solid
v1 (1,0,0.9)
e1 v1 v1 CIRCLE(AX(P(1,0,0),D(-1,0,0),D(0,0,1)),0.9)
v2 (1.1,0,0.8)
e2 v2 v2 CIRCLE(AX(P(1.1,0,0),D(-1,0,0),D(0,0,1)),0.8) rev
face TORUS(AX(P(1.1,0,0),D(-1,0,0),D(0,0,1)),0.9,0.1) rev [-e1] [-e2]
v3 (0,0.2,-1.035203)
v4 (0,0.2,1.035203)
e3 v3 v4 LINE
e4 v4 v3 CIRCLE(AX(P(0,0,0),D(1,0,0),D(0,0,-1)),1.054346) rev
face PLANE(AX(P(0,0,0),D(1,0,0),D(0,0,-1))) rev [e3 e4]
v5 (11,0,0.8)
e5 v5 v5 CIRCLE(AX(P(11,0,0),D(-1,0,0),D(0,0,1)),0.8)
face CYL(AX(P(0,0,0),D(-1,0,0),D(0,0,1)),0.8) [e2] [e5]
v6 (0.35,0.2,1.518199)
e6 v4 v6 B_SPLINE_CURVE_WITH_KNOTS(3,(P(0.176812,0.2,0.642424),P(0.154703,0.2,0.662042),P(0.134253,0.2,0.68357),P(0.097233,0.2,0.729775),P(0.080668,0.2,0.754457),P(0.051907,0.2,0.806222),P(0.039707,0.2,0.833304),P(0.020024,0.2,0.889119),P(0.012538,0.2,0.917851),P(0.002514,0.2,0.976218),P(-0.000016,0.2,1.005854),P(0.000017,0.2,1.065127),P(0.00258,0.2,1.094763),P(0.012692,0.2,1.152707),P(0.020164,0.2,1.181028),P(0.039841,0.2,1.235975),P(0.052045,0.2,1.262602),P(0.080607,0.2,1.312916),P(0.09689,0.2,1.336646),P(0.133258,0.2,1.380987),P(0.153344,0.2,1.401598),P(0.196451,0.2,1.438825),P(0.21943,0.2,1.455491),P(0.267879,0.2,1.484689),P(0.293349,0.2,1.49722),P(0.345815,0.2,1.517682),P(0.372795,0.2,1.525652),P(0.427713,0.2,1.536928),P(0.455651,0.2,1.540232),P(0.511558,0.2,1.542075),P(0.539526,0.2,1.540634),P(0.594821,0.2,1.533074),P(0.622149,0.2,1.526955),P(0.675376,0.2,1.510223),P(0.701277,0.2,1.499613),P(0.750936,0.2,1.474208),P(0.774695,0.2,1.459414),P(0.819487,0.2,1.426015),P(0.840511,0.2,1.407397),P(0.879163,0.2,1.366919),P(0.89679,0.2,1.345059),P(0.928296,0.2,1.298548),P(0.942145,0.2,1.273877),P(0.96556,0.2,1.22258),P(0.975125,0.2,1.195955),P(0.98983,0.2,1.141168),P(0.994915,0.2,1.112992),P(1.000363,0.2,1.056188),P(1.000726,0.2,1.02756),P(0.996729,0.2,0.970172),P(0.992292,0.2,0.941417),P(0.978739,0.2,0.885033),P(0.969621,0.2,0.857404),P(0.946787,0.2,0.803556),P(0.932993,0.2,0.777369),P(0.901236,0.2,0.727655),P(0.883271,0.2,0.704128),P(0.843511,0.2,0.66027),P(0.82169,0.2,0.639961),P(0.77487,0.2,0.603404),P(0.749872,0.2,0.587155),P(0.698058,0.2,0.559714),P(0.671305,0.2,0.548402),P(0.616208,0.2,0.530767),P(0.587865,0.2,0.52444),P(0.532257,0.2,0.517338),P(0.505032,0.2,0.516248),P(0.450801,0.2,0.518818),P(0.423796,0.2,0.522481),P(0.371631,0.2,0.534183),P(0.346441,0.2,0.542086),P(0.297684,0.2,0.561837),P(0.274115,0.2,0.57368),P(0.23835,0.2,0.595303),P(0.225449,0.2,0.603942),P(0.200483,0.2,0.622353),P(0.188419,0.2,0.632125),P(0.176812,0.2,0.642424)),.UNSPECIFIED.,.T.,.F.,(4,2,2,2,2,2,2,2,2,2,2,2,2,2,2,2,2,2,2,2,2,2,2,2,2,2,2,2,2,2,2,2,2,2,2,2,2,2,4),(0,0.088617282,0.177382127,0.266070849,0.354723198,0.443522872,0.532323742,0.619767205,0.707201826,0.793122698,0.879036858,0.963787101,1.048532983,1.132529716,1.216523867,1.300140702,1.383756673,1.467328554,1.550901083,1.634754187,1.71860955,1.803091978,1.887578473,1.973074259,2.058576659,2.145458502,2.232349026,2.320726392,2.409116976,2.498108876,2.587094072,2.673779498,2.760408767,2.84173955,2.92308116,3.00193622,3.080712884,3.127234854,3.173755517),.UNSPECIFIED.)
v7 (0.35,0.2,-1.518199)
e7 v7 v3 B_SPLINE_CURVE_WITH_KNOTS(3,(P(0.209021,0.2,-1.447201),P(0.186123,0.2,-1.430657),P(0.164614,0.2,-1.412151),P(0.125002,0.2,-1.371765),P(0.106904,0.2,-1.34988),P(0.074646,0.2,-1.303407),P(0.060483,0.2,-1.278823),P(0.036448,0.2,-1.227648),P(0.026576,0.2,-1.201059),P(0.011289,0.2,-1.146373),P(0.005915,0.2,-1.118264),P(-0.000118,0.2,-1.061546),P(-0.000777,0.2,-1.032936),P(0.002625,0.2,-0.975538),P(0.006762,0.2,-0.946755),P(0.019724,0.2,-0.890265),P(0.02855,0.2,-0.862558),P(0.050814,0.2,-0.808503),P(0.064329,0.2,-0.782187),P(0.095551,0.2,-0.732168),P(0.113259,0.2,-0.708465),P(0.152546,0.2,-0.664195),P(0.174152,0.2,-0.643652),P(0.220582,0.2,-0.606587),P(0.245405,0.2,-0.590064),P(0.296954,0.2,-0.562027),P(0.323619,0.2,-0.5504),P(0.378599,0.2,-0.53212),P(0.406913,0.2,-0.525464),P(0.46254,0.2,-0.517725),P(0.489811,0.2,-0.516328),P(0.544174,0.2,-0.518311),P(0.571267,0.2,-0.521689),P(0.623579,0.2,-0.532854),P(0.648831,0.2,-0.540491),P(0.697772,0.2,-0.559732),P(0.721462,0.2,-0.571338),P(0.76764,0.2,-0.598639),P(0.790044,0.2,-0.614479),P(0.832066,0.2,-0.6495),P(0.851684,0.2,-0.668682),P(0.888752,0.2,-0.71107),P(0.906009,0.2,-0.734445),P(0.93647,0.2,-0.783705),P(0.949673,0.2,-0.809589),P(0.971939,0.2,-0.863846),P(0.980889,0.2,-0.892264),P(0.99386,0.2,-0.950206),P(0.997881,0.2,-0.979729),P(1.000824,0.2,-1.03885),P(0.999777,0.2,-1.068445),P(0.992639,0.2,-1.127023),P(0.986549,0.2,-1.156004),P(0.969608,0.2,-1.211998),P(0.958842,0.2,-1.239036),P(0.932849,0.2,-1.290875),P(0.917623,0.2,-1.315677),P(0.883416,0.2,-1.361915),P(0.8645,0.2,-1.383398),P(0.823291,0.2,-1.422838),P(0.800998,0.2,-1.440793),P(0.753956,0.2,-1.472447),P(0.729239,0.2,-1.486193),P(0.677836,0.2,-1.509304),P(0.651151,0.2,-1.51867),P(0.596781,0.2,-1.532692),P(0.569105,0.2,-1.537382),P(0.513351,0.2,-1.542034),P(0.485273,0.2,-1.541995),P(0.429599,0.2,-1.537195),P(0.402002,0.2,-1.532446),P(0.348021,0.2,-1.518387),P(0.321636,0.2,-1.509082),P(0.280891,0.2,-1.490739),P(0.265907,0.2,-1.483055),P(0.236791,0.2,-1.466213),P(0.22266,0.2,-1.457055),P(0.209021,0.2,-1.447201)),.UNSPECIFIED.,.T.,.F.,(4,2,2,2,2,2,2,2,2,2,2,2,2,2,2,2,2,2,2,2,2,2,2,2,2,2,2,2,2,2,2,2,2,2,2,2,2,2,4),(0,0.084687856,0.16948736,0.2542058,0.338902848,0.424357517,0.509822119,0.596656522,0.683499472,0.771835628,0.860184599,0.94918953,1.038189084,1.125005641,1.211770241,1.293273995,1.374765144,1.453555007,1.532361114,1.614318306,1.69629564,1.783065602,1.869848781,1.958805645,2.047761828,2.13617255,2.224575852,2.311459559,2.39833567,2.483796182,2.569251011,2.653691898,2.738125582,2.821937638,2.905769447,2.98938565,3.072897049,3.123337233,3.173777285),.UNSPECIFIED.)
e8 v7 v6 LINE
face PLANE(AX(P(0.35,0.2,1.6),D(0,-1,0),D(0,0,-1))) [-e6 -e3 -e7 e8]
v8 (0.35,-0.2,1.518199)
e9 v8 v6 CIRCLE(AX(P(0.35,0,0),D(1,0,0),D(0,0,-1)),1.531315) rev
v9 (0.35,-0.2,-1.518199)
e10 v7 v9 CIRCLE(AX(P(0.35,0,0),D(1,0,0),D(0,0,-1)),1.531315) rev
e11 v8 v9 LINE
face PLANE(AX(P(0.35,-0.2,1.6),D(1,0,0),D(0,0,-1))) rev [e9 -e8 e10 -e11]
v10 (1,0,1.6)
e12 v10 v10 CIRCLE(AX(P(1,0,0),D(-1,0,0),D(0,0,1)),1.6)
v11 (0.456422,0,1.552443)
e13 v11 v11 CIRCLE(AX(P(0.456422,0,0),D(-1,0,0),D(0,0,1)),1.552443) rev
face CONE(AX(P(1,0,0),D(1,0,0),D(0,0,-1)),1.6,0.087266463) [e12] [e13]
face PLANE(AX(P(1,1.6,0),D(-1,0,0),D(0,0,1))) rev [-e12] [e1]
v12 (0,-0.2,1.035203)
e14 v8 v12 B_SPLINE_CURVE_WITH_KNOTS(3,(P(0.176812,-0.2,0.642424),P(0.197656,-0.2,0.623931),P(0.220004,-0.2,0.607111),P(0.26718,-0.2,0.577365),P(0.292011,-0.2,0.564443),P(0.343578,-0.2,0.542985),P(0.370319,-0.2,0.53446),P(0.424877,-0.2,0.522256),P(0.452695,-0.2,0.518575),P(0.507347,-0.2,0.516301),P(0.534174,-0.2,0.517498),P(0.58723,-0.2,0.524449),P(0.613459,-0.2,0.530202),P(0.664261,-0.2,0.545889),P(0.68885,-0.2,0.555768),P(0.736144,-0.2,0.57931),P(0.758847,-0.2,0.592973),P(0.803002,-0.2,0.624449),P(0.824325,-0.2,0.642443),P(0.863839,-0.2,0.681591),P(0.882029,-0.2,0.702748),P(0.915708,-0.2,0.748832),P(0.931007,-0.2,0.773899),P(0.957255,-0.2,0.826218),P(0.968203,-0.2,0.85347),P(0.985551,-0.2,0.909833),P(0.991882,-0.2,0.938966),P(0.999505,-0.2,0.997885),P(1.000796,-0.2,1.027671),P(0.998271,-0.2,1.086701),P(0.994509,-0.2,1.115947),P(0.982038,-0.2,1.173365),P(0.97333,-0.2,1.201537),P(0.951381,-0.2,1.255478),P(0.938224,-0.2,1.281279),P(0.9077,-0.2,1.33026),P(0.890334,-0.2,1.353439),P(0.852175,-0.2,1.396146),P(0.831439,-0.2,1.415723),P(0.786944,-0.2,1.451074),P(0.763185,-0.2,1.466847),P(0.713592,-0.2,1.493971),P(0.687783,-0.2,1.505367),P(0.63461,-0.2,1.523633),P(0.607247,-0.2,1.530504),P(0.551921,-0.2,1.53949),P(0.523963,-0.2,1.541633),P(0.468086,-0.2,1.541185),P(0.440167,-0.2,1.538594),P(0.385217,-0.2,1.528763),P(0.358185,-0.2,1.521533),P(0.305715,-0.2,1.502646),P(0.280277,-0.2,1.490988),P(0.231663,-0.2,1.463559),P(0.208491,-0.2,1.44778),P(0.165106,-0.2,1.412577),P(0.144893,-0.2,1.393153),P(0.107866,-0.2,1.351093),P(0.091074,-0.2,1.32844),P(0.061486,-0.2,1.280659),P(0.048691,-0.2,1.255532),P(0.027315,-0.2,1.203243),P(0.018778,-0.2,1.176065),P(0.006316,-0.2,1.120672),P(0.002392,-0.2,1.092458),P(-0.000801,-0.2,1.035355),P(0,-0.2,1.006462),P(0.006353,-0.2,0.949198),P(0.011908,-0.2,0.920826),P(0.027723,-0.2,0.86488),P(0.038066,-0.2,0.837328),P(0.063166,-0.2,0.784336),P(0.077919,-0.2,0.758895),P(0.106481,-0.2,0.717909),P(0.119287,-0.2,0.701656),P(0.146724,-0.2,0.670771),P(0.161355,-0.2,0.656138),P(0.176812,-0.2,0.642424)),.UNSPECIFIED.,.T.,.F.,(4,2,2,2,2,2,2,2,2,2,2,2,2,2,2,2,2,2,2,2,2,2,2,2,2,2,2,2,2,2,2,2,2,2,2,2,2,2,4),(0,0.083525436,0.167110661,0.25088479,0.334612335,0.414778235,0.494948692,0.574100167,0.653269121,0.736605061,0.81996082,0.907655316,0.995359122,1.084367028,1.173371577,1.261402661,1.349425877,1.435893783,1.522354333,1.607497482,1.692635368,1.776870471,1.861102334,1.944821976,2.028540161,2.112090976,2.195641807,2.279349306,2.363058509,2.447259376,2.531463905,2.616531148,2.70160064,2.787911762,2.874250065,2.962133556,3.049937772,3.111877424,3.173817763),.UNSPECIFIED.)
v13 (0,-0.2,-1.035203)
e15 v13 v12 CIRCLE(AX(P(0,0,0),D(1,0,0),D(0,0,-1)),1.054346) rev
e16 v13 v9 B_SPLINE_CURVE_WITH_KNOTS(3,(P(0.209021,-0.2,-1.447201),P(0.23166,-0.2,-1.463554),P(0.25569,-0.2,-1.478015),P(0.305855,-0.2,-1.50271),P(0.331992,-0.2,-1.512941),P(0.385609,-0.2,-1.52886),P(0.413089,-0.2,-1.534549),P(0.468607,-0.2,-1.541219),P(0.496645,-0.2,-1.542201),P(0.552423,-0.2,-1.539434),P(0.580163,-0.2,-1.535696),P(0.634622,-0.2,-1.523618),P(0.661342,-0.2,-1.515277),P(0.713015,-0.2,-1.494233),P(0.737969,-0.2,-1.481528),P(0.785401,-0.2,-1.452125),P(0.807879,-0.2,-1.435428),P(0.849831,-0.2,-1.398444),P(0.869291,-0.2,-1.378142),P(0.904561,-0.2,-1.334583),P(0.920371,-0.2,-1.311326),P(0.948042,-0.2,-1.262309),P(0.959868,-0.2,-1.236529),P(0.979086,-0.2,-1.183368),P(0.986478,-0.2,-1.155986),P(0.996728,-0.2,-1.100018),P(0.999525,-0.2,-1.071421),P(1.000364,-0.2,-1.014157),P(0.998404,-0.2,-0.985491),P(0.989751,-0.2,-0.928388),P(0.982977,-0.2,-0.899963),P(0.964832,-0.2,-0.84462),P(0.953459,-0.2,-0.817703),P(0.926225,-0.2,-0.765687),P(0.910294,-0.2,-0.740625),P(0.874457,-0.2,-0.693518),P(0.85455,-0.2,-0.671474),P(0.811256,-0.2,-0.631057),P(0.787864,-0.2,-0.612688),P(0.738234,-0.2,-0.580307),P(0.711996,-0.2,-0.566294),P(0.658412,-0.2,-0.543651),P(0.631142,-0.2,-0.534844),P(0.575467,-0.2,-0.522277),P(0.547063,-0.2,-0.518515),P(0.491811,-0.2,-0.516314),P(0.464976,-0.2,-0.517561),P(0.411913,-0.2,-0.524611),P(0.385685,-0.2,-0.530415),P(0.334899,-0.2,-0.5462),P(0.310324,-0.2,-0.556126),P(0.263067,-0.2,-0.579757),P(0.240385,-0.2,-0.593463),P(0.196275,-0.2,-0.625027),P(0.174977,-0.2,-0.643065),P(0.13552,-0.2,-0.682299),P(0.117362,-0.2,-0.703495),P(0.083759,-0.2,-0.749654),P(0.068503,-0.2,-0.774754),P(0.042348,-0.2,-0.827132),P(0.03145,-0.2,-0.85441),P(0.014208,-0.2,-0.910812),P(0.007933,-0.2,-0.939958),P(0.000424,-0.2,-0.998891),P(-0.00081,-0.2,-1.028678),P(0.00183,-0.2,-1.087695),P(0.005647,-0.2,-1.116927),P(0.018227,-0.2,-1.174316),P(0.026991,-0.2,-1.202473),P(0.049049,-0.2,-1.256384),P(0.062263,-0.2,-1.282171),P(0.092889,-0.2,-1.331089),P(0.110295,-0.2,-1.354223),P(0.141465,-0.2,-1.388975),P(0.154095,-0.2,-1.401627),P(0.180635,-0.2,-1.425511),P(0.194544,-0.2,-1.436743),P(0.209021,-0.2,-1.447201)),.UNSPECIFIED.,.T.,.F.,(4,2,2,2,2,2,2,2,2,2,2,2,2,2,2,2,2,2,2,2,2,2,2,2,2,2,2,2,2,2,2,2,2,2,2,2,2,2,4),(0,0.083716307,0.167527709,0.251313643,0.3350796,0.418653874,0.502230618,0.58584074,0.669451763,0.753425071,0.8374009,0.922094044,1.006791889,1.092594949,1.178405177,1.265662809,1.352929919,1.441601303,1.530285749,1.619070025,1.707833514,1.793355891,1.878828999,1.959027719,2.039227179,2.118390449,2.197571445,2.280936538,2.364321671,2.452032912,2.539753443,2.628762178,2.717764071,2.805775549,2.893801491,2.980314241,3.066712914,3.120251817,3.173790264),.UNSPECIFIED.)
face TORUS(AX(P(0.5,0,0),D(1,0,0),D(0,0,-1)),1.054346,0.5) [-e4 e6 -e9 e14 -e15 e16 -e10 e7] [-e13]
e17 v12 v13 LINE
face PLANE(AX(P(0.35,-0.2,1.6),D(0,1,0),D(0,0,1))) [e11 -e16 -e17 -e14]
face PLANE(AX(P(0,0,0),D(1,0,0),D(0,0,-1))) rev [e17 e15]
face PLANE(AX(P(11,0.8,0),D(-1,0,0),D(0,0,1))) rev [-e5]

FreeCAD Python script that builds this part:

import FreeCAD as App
import Part
import Sketcher
from FreeCAD import Vector
Q = App.Units.Quantity


def edges_at(feature, points):
    """Names of the edges that pass closest to the given points."""
    edges = feature.Shape.Edges
    near = lambda p: min(range(len(edges)), key=lambda i: edges[i].distToShape(Part.Vertex(*p))[0])
    return sorted({f"Edge{near(p) + 1}" for p in points})


def add_polygon(sketch, points):
    """Adds a closed chain of lines whose ends are joined by coincident constraints."""
    first, n = sketch.GeometryCount, len(points)
    for a, b in zip(points, points[1:] + points[:1]):
        sketch.addGeometry(Part.LineSegment(App.Vector(*a, 0), App.Vector(*b, 0)), False)
    for i in range(n):
        sketch.addConstraint(Sketcher.Constraint("Coincident", first + i, 2, first + (i + 1) % n, 1))

doc = App.newDocument("Part")
params = doc.addObject("Spreadsheet::Sheet", "Params")
for row, (alias, value) in enumerate([
    ("sketch1_width", "11 mm"),
    ("sketch1_width2", "10 mm"),
    ("sketch1_height", "0.8 mm"),
    ("revolution_angle", "360 deg"),
    ("fillet_radius", "0.1 mm"),
    ("fillet2_radius", "0.5 mm"),
    ("sketch2_width", "0.4 mm"),
    ("sketch2_height", "3.2 mm"),
    ("pocket1_length", "0.35 mm"),
], start=1):
    params.set(f"A{row}", alias)
    params.set(f"B{row}", "=" + value)
    params.setAlias(f"B{row}", alias)

body = doc.addObject("PartDesign::Body", "Body")

# Sketch on XY plane
sketch1 = body.newObject("Sketcher::SketchObject", "Sketch")
sketch1.AttachmentSupport = (doc.getObject("XY_Plane"), [""])
sketch1.MapMode = "FlatFace"
add_polygon(sketch1, [(0, 1.512511), (0, 0), (11, 0), (11, 0.8), (1, 0.8), (1, 1.6)])  # lines 0-5
sketch1.addConstraint(Sketcher.Constraint("Vertical", 0))
sketch1.addConstraint(Sketcher.Constraint("Horizontal", 1))
sketch1.addConstraint(Sketcher.Constraint("Vertical", 2))
sketch1.addConstraint(Sketcher.Constraint("Horizontal", 3))
sketch1.addConstraint(Sketcher.Constraint("Vertical", 4))
sketch1.addConstraint(Sketcher.Constraint("Coincident", 0, 2, -1, 1))
sketch1.addConstraint(Sketcher.Constraint("Equal", 2, 4))
sketch1.addConstraint(Sketcher.Constraint("DistanceX", 1, 1, 1, 2, Q("11 mm")))
sketch1.addConstraint(Sketcher.Constraint("DistanceX", 3, 2, 3, 1, Q("10 mm")))
sketch1.addConstraint(Sketcher.Constraint("Angle", 5, Q("-175 deg")))
sketch1.addConstraint(Sketcher.Constraint("DistanceY", 2, 1, 2, 2, Q("0.8 mm")))
sketch1.setExpression("Constraints[13]", "Params.sketch1_width")
sketch1.setExpression("Constraints[14]", "Params.sketch1_width2")
sketch1.setExpression("Constraints[16]", "Params.sketch1_height")
revolution = body.newObject("PartDesign::Revolution", "Revolution")
revolution.Profile = sketch1
revolution.ReferenceAxis = (sketch1, ["H_Axis"])
revolution.setExpression("Angle", "Params.revolution_angle")
doc.recompute()

fillet = body.newObject("PartDesign::Fillet", "Fillet")
fillet.Base = (revolution, edges_at(revolution, [(1, 0, -0.8)]))
fillet.setExpression("Radius", "Params.fillet_radius")
doc.recompute()

fillet2 = body.newObject("PartDesign::Fillet", "Fillet001")
fillet2.Base = (fillet, edges_at(fillet, [(0, 0, -1.513)]))
fillet2.setExpression("Radius", "Params.fillet2_radius")

# Sketch on YZ plane
sketch2 = body.newObject("Sketcher::SketchObject", "Sketch001")
sketch2.AttachmentSupport = (doc.getObject("YZ_Plane"), [""])
sketch2.MapMode = "FlatFace"
add_polygon(sketch2, [(0.2, 1.6), (-0.2, 1.6), (-0.2, -1.6), (0.2, -1.6)])  # lines 0-3
sketch2.addConstraint(Sketcher.Constraint("Horizontal", 0))
sketch2.addConstraint(Sketcher.Constraint("Vertical", 1))
sketch2.addConstraint(Sketcher.Constraint("Horizontal", 2))
sketch2.addConstraint(Sketcher.Constraint("Vertical", 3))
sketch2.addConstraint(Sketcher.Constraint("Symmetric", 0, 2, 2, 2, -1, 1))
sketch2.addConstraint(Sketcher.Constraint("DistanceX", 0, 2, 0, 1, Q("0.4 mm")))
sketch2.addConstraint(Sketcher.Constraint("DistanceY", 1, 2, 1, 1, Q("3.2 mm")))
sketch2.setExpression("Constraints[9]", "Params.sketch2_width")
sketch2.setExpression("Constraints[10]", "Params.sketch2_height")
pocket1 = body.newObject("PartDesign::Pocket", "Pocket")
pocket1.Profile = sketch2
pocket1.setExpression("Length", "Params.pocket1_length")
pocket1.Reversed = True

doc.recompute()
